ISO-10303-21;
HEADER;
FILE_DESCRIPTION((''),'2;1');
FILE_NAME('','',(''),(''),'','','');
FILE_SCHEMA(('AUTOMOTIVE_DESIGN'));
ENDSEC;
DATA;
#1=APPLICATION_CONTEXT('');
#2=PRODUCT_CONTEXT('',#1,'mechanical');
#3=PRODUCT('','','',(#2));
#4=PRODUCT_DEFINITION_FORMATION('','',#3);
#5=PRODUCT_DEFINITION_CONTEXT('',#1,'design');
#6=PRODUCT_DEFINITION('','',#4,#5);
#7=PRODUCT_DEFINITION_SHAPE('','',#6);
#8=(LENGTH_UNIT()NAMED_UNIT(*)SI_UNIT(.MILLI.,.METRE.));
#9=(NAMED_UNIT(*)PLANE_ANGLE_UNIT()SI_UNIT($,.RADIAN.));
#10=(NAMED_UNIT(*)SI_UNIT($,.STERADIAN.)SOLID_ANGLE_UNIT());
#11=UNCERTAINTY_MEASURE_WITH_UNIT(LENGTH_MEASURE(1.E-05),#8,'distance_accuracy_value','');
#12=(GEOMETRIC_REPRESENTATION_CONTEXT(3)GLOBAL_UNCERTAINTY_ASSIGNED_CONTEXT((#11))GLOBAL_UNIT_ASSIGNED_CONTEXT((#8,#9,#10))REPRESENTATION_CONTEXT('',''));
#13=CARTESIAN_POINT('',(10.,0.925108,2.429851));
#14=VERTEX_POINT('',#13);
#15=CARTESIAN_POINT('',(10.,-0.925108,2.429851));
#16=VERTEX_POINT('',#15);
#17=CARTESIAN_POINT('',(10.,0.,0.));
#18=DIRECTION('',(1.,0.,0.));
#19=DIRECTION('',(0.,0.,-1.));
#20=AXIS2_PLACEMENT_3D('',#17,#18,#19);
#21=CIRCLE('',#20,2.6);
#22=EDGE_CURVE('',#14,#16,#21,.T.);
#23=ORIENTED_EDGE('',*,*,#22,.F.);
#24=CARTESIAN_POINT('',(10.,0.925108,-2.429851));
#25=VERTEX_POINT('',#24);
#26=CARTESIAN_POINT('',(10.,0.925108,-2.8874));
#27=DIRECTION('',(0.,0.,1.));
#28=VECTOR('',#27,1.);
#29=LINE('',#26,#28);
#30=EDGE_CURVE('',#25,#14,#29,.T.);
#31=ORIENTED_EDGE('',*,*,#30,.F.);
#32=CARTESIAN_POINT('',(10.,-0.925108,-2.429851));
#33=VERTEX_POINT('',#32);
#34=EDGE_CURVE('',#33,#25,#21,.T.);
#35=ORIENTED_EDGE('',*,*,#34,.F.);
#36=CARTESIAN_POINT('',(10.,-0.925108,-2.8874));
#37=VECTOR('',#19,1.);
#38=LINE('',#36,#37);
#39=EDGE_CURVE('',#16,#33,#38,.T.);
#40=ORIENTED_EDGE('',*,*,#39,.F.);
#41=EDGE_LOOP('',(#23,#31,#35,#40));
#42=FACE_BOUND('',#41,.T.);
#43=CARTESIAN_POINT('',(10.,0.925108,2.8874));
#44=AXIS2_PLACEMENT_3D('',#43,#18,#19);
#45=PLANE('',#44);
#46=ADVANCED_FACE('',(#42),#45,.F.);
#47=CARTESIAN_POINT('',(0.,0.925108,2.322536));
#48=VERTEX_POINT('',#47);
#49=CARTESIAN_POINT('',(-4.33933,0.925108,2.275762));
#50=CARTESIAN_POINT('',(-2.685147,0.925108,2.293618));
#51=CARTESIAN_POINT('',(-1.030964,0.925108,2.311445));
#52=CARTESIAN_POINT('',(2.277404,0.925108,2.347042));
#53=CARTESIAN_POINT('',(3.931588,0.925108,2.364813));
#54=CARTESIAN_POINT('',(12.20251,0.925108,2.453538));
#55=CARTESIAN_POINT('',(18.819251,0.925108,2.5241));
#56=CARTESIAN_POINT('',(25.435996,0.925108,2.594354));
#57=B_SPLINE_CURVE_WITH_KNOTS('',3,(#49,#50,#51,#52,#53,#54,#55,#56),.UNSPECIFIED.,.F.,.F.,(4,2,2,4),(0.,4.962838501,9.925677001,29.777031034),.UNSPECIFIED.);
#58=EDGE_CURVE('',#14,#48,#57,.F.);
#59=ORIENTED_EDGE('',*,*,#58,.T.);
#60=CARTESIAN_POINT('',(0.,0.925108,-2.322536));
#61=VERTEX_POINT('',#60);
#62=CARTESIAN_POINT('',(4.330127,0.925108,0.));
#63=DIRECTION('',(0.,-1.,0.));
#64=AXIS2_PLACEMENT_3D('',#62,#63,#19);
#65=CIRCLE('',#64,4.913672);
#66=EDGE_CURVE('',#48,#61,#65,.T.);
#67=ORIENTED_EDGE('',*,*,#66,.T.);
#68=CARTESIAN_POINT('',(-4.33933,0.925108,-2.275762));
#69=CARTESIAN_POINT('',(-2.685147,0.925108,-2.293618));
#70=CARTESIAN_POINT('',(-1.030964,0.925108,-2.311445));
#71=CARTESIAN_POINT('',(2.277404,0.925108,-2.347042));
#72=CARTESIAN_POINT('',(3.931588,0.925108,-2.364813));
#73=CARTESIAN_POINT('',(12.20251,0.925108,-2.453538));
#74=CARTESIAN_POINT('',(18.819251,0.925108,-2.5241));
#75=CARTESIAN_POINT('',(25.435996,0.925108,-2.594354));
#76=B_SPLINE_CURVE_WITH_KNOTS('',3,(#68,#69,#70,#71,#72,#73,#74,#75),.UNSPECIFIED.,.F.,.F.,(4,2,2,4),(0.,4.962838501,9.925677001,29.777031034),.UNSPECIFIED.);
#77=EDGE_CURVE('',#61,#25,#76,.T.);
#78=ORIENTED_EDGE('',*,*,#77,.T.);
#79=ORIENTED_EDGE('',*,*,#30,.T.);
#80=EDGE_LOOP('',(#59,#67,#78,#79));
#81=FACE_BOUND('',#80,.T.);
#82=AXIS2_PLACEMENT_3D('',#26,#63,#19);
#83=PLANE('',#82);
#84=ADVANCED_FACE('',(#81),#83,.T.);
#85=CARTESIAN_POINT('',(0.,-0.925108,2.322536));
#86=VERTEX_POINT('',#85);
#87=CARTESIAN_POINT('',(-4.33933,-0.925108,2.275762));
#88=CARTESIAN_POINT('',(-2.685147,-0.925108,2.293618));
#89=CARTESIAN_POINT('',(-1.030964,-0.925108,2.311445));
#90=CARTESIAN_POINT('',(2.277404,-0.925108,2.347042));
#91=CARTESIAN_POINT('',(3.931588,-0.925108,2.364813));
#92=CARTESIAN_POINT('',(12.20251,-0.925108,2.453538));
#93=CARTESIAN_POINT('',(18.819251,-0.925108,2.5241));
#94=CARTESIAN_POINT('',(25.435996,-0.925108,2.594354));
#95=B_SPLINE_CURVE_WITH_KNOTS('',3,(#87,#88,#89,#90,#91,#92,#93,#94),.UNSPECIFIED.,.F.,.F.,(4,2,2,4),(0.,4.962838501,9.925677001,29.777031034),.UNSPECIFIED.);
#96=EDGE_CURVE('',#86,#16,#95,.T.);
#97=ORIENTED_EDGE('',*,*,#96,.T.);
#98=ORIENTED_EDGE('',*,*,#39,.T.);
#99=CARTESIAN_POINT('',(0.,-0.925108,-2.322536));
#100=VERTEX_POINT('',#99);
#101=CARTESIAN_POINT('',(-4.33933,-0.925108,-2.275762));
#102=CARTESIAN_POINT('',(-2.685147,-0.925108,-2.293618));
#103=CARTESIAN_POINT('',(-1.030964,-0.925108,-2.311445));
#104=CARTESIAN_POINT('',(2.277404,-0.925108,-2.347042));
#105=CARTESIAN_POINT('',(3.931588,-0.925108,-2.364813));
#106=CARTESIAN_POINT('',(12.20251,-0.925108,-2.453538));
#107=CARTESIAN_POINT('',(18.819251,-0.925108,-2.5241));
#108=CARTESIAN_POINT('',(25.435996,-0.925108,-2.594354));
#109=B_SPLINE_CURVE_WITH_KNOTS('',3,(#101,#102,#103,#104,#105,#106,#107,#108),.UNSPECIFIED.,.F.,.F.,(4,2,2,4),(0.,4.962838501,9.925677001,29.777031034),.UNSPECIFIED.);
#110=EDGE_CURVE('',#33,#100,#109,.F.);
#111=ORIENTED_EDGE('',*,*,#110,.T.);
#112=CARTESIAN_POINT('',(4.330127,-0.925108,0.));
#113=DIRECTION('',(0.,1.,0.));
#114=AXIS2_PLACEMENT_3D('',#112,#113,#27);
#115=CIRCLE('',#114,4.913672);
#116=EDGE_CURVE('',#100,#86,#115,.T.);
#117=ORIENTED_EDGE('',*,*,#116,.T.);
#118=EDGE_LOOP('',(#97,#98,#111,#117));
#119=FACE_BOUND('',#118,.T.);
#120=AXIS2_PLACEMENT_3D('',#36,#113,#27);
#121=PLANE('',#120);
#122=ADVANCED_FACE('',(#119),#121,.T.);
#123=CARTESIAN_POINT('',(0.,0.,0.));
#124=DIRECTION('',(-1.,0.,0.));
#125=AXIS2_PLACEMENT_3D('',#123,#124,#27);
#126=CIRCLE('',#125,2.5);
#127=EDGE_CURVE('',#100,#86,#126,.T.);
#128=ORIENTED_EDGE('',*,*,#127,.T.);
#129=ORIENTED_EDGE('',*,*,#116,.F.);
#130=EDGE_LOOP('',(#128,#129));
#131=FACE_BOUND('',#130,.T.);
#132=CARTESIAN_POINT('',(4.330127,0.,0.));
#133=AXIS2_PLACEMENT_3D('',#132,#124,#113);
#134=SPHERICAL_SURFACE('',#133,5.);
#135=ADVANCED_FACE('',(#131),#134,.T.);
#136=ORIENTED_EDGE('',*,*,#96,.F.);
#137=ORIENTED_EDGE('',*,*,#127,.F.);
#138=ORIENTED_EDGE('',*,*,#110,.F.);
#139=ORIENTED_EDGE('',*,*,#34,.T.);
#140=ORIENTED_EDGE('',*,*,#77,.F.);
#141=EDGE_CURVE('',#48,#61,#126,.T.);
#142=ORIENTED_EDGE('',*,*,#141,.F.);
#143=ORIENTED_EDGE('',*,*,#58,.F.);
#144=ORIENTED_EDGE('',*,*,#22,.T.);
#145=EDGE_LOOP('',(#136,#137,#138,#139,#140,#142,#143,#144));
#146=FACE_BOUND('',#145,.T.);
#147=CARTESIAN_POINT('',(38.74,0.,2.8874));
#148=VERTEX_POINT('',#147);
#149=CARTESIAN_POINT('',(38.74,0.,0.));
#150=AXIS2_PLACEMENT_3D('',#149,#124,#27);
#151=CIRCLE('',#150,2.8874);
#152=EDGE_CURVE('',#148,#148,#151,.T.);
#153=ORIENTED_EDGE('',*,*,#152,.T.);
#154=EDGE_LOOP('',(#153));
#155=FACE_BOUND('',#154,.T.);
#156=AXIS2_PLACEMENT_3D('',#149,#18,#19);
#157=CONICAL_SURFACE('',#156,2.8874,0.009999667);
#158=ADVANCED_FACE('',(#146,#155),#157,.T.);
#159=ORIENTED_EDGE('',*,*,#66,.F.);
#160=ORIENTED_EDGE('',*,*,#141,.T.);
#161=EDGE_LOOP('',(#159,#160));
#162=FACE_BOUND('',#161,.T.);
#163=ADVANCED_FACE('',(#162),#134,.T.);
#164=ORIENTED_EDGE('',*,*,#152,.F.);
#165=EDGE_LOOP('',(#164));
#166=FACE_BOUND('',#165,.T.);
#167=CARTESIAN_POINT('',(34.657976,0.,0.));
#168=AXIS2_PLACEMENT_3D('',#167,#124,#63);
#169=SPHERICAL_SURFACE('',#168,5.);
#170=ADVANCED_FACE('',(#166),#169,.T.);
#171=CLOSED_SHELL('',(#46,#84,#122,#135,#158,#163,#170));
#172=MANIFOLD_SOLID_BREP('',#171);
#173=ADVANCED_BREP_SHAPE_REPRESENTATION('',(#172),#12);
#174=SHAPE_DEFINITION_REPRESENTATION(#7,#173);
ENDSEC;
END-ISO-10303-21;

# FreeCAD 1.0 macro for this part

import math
import FreeCAD as App
import Part
import Sketcher
Q = App.Units.Quantity


def add_polygon(sketch, points):
    """Adds a closed chain of lines whose ends are joined by coincident constraints."""
    first, n = sketch.GeometryCount, len(points)
    for a, b in zip(points, points[1:] + points[:1]):
        sketch.addGeometry(Part.LineSegment(App.Vector(*a, 0), App.Vector(*b, 0)), False)
    for i in range(n):
        sketch.addConstraint(Sketcher.Constraint("Coincident", first + i, 2, first + (i + 1) % n, 1))

doc = App.newDocument("Part")
params = doc.addObject("Spreadsheet::Sheet", "Params")
for row, (alias, value) in enumerate([
    ("sketch1_radius", "5 mm"),
    ("revolution_angle", "360 deg"),
    ("pocket1_length", "10 mm"),
    ("pocket1_length2", "40.867646 mm"),
], start=1):
    params.set(f"A{row}", alias)
    params.set(f"B{row}", "=" + value)
    params.setAlias(f"B{row}", alias)

body = doc.addObject("PartDesign::Body", "Body")

# Sketch on XY plane
sketch1 = body.newObject("Sketcher::SketchObject", "Sketch")
sketch1.AttachmentSupport = (doc.getObject("XY_Plane"), [""])
sketch1.MapMode = "FlatFace"
sketch1.addGeometry(Part.LineSegment(App.Vector(38.7, 2.9, 0), App.Vector(0, 2.5, 0)), False)
sketch1.addGeometry(Part.ArcOfCircle(Part.Circle(App.Vector(4.3, 0, 0), App.Vector(0, 0, 1), 5), math.radians(150), math.radians(180)), False)
sketch1.addGeometry(Part.LineSegment(App.Vector(-0.7, 0, 0), App.Vector(39.7, 0, 0)), False)
sketch1.addGeometry(Part.ArcOfCircle(Part.Circle(App.Vector(34.7, 0, 0), App.Vector(0, 0, 1), 5), math.radians(0), math.radians(35)), False)
sketch1.addConstraint(Sketcher.Constraint("Coincident", 0, 2, 1, 1))
sketch1.addConstraint(Sketcher.Constraint("Coincident", 1, 2, 2, 1))
sketch1.addConstraint(Sketcher.Constraint("Coincident", 2, 2, 3, 1))
sketch1.addConstraint(Sketcher.Constraint("Coincident", 3, 2, 0, 1))
sketch1.addConstraint(Sketcher.Constraint("Horizontal", 2))
sketch1.addConstraint(Sketcher.Constraint("Equal", 1, 3))
sketch1.addConstraint(Sketcher.Constraint("PointOnObject", 1, 3, -1))
sketch1.addConstraint(Sketcher.Constraint("PointOnObject", 3, 3, -1))
sketch1.addConstraint(Sketcher.Constraint("PointOnObject", 0, 2, -2))
sketch1.addConstraint(Sketcher.Constraint("PointOnObject", 1, 2, -1))
sketch1.addConstraint(Sketcher.Constraint("Radius", 1, Q("5 mm")))
sketch1.addConstraint(Sketcher.Constraint("DistanceY", -1, 1, 0, 2, Q("2.5 mm")))
sketch1.addConstraint(Sketcher.Constraint("DistanceX", -1, 1, 3, 2, Q("38.74 mm")))
sketch1.addConstraint(Sketcher.Constraint("DistanceX", 2, 1, 2, 2, Q("40.327849 mm")))
sketch1.setExpression("Constraints[10]", "Params.sketch1_radius")
revolution = body.newObject("PartDesign::Revolution", "Revolution")
revolution.Profile = sketch1
revolution.ReferenceAxis = (sketch1, ["H_Axis"])
revolution.setExpression("Angle", "Params.revolution_angle")

# Sketch on YZ plane
sketch2 = body.newObject("Sketcher::SketchObject", "Sketch001")
sketch2.AttachmentSupport = (doc.getObject("YZ_Plane"), [""])
sketch2.MapMode = "FlatFace"
add_polygon(sketch2, [(0.9, 2.9), (-0.9, 2.9), (-0.9, -2.9), (0.9, -2.9)])  # lines 0-3
sketch2.addConstraint(Sketcher.Constraint("Horizontal", 0))
sketch2.addConstraint(Sketcher.Constraint("Vertical", 1))
sketch2.addConstraint(Sketcher.Constraint("Horizontal", 2))
sketch2.addConstraint(Sketcher.Constraint("Vertical", 3))
sketch2.addConstraint(Sketcher.Constraint("Symmetric", 0, 2, 2, 2, -1, 1))
sketch2.addConstraint(Sketcher.Constraint("DistanceY", 1, 2, 1, 1, Q("5.7748 mm")))
sketch2.addConstraint(Sketcher.Constraint("DistanceX", 0, 2, 0, 1, Q("1.850215 mm")))
pocket1 = body.newObject("PartDesign::Pocket", "Pocket")
pocket1.Profile = sketch2
pocket1.Type = "TwoLengths"
pocket1.setExpression("Length", "Params.pocket1_length")
pocket1.setExpression("Length2", "Params.pocket1_length2")
pocket1.Reversed = True

doc.recompute()
